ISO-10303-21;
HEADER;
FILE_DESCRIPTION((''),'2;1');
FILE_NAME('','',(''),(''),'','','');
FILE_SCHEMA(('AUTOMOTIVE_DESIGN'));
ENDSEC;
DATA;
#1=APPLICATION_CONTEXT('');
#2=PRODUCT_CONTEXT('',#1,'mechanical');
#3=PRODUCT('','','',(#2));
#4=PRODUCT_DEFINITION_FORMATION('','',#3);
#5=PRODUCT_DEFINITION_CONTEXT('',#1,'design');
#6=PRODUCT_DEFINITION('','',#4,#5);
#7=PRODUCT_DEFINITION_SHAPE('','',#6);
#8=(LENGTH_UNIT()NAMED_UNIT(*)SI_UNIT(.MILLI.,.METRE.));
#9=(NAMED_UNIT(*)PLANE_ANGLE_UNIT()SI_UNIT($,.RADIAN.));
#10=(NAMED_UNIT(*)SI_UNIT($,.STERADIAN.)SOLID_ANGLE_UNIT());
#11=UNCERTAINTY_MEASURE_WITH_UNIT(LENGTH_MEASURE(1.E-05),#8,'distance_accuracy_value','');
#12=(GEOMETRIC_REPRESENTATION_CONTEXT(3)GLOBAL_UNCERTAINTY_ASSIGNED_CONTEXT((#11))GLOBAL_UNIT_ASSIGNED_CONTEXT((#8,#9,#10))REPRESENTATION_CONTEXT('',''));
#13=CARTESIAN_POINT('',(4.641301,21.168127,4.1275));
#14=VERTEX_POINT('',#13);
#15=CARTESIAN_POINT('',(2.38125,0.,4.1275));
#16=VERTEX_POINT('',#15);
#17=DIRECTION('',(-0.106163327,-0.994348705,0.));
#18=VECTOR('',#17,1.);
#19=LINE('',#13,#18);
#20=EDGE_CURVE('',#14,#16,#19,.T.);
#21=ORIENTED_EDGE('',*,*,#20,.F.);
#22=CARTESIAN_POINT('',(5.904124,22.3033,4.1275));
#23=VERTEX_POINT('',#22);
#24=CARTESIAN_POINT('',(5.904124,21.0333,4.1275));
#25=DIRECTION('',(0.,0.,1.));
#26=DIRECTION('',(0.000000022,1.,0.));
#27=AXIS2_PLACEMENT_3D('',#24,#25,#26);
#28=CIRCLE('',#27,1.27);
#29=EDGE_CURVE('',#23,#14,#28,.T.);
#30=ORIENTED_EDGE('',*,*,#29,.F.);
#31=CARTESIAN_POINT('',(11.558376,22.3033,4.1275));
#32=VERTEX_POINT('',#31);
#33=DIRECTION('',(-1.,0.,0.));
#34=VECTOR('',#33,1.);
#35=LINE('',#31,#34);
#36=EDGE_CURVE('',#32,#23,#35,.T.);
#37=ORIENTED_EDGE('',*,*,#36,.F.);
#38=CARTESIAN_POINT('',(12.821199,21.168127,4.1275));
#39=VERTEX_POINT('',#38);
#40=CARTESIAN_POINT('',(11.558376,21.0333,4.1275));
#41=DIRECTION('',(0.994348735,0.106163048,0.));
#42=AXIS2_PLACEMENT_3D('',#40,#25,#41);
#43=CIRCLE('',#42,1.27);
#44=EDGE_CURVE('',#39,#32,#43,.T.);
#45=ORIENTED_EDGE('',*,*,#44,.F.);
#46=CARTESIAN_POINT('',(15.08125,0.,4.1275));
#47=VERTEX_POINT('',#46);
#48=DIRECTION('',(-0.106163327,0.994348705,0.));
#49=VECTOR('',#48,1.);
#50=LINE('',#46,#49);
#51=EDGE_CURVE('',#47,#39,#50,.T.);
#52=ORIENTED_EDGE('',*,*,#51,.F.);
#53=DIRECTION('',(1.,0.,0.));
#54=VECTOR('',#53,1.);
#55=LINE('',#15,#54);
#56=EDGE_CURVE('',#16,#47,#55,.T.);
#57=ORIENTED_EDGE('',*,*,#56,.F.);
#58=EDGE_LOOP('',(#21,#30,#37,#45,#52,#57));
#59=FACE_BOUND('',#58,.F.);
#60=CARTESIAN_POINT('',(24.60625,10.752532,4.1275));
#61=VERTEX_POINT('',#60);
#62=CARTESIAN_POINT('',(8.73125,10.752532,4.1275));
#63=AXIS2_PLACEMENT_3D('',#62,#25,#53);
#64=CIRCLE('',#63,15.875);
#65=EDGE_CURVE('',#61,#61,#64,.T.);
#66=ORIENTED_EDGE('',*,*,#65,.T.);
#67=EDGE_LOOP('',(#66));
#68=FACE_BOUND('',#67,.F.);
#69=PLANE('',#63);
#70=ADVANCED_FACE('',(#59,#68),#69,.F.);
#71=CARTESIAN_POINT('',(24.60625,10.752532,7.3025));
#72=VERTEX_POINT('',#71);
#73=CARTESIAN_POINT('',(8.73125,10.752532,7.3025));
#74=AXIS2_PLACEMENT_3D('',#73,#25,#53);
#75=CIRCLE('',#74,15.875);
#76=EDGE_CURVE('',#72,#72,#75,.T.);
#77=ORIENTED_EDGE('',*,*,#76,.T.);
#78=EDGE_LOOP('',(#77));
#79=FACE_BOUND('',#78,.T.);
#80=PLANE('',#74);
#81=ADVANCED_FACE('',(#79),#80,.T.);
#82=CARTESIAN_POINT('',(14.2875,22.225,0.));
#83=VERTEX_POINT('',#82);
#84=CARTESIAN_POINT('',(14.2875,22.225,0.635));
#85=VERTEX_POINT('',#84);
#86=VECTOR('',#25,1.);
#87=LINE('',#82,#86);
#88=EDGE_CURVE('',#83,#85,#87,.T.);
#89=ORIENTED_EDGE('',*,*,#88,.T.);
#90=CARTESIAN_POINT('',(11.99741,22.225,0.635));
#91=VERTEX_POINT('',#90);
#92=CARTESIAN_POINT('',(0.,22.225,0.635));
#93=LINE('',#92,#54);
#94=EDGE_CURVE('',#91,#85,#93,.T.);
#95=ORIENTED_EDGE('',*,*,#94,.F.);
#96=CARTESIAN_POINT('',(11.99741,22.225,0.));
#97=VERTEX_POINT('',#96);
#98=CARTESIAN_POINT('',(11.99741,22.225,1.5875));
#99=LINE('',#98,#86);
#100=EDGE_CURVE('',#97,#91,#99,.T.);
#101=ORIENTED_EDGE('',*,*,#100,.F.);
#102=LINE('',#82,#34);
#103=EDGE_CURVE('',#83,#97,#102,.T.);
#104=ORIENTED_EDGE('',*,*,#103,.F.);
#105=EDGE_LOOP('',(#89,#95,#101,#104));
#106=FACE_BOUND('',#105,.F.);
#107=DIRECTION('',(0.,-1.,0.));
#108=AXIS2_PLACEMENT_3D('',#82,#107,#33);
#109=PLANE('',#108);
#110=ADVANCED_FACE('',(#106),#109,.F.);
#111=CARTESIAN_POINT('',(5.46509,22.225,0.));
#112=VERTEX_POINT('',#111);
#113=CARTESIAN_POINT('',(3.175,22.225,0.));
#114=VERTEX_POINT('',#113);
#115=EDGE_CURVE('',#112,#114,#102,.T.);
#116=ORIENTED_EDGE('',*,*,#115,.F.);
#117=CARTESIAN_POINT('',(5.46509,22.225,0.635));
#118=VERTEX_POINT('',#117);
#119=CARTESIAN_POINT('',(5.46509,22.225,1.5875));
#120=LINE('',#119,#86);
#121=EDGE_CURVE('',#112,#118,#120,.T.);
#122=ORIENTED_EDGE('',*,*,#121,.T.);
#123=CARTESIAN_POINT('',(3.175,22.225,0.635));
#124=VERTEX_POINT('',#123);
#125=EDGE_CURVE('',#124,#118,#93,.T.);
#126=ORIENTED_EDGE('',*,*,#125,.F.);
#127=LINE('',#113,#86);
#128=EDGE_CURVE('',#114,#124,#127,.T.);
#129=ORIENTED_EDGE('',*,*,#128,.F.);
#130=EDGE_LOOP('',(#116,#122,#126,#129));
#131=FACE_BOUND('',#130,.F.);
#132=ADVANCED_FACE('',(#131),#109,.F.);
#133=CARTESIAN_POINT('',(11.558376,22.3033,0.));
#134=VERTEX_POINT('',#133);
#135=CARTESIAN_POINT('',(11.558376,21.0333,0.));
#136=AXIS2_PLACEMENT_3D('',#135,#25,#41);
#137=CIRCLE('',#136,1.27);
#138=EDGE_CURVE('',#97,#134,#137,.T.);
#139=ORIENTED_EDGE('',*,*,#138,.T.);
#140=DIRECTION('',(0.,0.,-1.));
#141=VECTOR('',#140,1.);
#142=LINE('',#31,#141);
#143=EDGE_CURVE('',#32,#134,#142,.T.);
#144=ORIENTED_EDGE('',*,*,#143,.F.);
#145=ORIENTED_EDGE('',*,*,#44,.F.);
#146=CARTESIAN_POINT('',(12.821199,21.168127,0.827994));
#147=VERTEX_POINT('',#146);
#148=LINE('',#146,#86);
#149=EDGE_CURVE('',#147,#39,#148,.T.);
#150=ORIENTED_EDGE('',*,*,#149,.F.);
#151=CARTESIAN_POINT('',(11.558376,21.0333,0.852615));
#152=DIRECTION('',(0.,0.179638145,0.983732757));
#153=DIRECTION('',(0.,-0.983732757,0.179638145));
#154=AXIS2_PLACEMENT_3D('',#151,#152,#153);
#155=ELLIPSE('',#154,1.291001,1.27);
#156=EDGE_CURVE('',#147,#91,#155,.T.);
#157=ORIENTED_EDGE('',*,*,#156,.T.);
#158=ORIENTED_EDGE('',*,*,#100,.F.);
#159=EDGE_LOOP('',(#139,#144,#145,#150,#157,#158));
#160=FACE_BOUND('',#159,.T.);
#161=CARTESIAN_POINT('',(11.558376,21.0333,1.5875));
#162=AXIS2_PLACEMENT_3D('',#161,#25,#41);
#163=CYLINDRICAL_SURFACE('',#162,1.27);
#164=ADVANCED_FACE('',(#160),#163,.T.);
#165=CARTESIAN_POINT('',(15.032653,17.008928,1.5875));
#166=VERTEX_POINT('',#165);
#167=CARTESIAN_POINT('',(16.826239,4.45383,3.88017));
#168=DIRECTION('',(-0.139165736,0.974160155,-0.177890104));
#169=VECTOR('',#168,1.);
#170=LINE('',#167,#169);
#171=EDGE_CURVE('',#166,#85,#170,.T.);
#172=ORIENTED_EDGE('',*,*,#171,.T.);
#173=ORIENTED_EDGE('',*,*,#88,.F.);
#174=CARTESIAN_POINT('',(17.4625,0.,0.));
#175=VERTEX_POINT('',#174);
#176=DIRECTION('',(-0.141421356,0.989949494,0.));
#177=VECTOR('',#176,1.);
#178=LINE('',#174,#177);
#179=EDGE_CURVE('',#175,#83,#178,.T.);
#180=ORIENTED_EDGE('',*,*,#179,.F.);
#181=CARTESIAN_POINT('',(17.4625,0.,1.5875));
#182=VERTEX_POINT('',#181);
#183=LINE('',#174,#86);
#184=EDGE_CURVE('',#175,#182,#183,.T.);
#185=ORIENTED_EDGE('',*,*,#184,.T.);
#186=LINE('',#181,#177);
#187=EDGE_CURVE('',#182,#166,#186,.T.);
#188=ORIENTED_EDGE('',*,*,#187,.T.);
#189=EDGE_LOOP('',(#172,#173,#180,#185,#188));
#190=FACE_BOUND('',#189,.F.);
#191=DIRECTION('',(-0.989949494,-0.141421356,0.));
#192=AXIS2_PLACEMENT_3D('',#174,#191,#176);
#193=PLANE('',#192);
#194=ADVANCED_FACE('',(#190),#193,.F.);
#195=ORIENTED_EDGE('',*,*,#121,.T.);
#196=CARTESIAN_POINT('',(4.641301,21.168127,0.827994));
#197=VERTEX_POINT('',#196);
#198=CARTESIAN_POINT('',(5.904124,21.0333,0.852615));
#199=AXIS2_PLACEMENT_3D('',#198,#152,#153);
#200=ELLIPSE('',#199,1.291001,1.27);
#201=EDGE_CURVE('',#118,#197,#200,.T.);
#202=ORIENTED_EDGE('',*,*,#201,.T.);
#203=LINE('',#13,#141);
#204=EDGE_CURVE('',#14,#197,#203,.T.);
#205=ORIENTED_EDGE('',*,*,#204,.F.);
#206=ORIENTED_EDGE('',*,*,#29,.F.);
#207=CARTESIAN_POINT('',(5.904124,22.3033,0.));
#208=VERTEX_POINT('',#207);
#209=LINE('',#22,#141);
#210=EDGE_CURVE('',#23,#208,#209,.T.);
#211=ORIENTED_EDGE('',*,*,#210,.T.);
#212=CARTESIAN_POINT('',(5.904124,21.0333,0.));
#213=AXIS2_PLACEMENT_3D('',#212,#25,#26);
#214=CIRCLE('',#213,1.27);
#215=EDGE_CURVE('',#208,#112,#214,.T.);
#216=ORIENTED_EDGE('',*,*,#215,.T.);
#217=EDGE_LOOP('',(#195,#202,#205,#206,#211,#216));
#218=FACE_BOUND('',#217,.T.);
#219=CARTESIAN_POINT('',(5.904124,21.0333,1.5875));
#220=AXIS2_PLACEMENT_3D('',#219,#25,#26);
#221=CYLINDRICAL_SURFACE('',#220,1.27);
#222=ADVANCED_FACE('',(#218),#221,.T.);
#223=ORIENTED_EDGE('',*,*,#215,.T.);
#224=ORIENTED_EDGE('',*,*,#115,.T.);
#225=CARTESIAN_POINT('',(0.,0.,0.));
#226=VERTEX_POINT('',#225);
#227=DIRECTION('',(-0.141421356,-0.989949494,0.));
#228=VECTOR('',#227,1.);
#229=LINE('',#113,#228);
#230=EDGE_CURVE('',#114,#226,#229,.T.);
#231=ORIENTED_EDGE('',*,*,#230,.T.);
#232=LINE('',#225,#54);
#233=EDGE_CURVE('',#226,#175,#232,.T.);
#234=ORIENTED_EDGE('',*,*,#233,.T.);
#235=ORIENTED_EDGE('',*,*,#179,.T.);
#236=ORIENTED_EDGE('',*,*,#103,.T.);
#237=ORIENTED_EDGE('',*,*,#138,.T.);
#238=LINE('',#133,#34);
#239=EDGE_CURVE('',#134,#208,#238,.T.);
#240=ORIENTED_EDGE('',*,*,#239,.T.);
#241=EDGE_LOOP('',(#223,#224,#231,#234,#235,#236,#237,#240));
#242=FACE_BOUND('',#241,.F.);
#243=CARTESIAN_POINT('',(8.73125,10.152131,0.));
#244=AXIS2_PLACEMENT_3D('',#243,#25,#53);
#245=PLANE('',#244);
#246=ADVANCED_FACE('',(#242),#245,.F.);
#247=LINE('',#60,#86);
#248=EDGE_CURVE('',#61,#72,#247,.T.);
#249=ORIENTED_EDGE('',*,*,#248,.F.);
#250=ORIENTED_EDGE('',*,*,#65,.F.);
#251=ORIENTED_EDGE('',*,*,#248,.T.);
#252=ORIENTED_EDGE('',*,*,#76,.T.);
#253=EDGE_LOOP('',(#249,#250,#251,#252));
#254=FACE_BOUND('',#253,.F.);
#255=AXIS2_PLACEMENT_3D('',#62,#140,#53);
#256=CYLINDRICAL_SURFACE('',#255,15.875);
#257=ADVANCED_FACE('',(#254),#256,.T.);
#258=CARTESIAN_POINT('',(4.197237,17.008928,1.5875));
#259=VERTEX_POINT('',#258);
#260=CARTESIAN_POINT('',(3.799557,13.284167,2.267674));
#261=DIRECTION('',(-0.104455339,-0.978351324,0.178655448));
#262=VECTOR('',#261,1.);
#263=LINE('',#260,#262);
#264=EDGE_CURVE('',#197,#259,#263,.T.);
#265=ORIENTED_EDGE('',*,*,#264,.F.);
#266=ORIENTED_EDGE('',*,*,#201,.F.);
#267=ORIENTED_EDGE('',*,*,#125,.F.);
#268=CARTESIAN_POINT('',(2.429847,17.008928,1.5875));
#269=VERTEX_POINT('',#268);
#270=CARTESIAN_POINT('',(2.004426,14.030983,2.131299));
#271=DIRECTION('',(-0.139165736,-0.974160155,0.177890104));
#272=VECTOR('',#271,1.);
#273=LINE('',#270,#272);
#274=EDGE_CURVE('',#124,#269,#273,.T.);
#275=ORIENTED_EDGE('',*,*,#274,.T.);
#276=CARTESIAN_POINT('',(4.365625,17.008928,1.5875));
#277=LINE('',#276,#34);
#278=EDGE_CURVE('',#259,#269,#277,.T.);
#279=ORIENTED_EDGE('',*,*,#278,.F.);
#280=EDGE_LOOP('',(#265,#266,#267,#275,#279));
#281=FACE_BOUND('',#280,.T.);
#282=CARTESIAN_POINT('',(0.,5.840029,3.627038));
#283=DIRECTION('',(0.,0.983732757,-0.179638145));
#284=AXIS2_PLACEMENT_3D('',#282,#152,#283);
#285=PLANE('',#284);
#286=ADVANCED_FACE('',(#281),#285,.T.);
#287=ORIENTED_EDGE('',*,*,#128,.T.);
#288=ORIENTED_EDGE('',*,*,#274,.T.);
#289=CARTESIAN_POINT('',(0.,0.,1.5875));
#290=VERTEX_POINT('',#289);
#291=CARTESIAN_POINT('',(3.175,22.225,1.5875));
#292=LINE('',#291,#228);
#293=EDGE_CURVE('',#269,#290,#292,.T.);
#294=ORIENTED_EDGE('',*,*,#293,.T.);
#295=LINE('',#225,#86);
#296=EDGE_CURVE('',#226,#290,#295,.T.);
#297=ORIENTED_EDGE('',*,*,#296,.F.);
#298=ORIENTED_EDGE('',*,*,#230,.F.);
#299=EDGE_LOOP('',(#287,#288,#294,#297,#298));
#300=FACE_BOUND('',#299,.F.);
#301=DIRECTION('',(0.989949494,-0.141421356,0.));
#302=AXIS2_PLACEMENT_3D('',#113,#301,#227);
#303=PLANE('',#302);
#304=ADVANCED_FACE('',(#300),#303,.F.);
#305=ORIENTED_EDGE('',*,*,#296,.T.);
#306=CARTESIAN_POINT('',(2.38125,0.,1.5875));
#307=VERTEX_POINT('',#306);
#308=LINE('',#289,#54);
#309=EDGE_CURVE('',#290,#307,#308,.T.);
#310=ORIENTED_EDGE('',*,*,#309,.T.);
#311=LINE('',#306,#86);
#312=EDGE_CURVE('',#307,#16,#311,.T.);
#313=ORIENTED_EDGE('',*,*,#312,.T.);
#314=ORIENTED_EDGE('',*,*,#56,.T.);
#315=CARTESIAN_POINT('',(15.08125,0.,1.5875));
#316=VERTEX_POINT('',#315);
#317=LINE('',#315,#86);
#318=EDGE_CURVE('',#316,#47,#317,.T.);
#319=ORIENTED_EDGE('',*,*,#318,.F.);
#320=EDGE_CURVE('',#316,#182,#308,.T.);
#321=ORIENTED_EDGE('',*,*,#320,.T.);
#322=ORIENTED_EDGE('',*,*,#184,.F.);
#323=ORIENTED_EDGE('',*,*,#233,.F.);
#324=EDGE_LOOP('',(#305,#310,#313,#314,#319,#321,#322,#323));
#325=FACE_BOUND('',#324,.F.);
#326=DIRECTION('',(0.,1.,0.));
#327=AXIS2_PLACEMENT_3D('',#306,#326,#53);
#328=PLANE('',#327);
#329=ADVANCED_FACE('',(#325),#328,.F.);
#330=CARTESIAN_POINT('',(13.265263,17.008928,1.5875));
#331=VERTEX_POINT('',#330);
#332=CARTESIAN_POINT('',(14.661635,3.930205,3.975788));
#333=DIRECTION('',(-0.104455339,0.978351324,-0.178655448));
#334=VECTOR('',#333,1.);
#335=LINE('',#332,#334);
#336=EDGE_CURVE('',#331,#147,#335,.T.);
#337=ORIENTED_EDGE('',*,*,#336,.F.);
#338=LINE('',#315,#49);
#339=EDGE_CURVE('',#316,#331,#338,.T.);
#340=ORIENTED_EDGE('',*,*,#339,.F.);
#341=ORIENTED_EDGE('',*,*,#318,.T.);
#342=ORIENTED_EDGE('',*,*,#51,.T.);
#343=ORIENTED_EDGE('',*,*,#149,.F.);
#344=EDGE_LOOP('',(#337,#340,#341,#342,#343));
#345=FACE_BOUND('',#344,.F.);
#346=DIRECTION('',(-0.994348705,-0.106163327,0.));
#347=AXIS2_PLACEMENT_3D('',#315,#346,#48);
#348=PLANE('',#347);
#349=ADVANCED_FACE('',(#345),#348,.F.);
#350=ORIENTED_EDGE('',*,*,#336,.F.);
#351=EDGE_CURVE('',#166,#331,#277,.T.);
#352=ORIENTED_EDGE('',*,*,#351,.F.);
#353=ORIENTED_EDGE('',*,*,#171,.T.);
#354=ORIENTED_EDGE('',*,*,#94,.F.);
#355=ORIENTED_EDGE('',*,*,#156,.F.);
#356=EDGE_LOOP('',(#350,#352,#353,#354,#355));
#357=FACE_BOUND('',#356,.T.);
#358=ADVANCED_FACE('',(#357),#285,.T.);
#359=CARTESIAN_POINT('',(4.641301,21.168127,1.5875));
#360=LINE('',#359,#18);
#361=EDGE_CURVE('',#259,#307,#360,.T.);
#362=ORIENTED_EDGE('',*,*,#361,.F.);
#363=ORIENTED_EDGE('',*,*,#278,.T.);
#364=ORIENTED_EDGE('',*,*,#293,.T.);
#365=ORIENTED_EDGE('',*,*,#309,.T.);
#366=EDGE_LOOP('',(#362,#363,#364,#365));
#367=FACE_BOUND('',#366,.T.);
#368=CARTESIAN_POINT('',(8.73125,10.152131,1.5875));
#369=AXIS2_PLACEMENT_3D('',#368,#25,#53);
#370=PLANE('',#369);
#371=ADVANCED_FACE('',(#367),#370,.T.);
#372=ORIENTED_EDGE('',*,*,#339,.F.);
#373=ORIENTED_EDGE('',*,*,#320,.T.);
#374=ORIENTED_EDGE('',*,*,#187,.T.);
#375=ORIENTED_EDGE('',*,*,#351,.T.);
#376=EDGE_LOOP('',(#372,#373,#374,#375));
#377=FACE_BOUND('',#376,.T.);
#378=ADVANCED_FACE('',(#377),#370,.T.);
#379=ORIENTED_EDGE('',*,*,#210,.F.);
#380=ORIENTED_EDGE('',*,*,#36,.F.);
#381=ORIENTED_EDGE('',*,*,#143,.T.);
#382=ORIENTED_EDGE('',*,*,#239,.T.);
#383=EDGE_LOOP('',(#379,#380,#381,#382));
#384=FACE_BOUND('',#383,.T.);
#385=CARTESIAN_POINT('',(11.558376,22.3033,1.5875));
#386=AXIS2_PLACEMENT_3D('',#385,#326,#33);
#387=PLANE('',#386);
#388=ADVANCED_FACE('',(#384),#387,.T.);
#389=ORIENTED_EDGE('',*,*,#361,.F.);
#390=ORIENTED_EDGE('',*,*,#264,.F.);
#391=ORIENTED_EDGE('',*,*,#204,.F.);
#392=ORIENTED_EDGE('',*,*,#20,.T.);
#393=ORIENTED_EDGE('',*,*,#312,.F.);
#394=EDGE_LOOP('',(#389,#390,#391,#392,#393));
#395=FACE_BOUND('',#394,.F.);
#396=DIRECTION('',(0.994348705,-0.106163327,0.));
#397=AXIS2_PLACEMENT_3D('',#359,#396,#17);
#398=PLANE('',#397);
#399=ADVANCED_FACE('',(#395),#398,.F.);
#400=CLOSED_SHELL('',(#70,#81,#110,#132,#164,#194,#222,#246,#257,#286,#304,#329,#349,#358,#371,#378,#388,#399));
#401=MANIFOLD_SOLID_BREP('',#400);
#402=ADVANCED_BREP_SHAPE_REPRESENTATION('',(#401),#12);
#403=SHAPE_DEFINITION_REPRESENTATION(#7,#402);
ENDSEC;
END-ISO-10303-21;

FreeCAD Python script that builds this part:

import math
import FreeCAD as App
import Part
import Sketcher
from FreeCAD import Vector
Q = App.Units.Quantity


def add_polygon(sketch, points):
    """Adds a closed chain of lines whose ends are joined by coincident constraints."""
    first, n = sketch.GeometryCount, len(points)
    for a, b in zip(points, points[1:] + points[:1]):
        sketch.addGeometry(Part.LineSegment(App.Vector(*a, 0), App.Vector(*b, 0)), False)
    for i in range(n):
        sketch.addConstraint(Sketcher.Constraint("Coincident", first + i, 2, first + (i + 1) % n, 1))

doc = App.newDocument("Part")
body = doc.addObject("PartDesign::Body", "Body")

# Sketch on XY plane
sketch1 = doc.addObject("Sketcher::SketchObject", "Sketch")
body.addObject(sketch1)
sketch1.AttachmentSupport = (doc.XY_Plane, [""])
sketch1.MapMode = "FlatFace"
add_polygon(sketch1, [(3.175, 22.225), (0, 0), (17.4625, 0), (14.2875, 22.225)])  # lines 0-3
sketch1.addConstraint([
    Sketcher.Constraint("Horizontal", 1),
    Sketcher.Constraint("Horizontal", 3),
    Sketcher.Constraint("Coincident", 0, 2, -1, 1),
    Sketcher.Constraint("Equal", 0, 2),
    Sketcher.Constraint("DistanceX", 1, 1, 1, 2, Q("0.6875 in")),
    Sketcher.Constraint("DistanceX", 3, 2, 3, 1, Q("0.4375 in")),
    Sketcher.Constraint("DistanceY", -1, 1, 2, 2, Q("0.875 in")),
])
pad1 = doc.addObject("PartDesign::Pad", "Pad")
body.addObject(pad1)
pad1.Profile = sketch1
pad1.Length = Q("0.0625 in")

# Sketch on YZ plane
sketch2 = doc.addObject("Sketcher::SketchObject", "Sketch001")
body.addObject(sketch2)
sketch2.AttachmentSupport = (doc.YZ_Plane, [""])
sketch2.MapMode = "FlatFace"
add_polygon(sketch2, [(5.840029, 3.627038), (22.225, 0.635), (22.723673, 7.972618), (5.840029, 7.972618)])  # lines 0-3
sketch2.addConstraint([
    Sketcher.Constraint("Horizontal", 2),
    Sketcher.Constraint("Vertical", 3),
    Sketcher.Constraint("DistanceX", -1, 1, 0, 2, Q("0.875 in")),
    Sketcher.Constraint("DistanceY", -1, 1, 0, 2, Q("0.025 in")),
    Sketcher.Constraint("DistanceY", 3, 2, 3, 1, Q("4.34558 mm")),
    Sketcher.Constraint("DistanceX", 2, 2, 2, 1, Q("16.883644 mm")),
    Sketcher.Constraint("DistanceX", -1, 1, 2, 2, Q("5.840029 mm")),
    Sketcher.Constraint("DistanceY", -1, 1, 3, 2, Q("3.627038 mm")),
])
pocket1 = doc.addObject("PartDesign::Pocket", "Pocket")
body.addObject(pocket1)
pocket1.Profile = sketch2
pocket1.Type = "ThroughAll"
pocket1.Reversed = True

# Sketch on XY plane
sketch3 = doc.addObject("Sketcher::SketchObject", "Sketch002")
body.addObject(sketch3)
sketch3.AttachmentSupport = (doc.XY_Plane, [""])
sketch3.MapMode = "FlatFace"
sketch3.AttachmentOffset = App.Placement(Vector(0, 0, 0.0625 * 25.4), App.Rotation())
sketch3.addGeometry([
    Part.LineSegment(Vector(2.38125, 0, 0), Vector(15.08125, 0, 0)),  # 0
    Part.LineSegment(Vector(15.08125, 0, 0), Vector(12.821199, 21.168127, 0)),  # 1
    Part.ArcOfCircle(Part.Circle(Vector(11.558376, 21.0333, 0), Vector(0, 0, 1), 1.27), math.radians(6.094179), math.radians(90.000001)),  # 2
    Part.LineSegment(Vector(11.558376, 22.3033, 0), Vector(5.904124, 22.3033, 0)),  # 3
    Part.ArcOfCircle(Part.Circle(Vector(5.904124, 21.0333, 0), Vector(0, 0, 1), 1.27), math.radians(89.999999), math.radians(173.905821)),  # 4
    Part.LineSegment(Vector(4.641301, 21.168127, 0), Vector(2.38125, 0, 0)),  # 5
], False)
sketch3.addConstraint([
    Sketcher.Constraint("Coincident", 0, 2, 1, 1),
    Sketcher.Constraint("Tangent", 1, 2, 2, 1),
    Sketcher.Constraint("Tangent", 2, 2, 3, 1),
    Sketcher.Constraint("Tangent", 3, 2, 4, 1),
    Sketcher.Constraint("Tangent", 4, 2, 5, 1),
    Sketcher.Constraint("Coincident", 5, 2, 0, 1),
    Sketcher.Constraint("Horizontal", 0),
    Sketcher.Constraint("Horizontal", 3),
    Sketcher.Constraint("Equal", 2, 4),
    Sketcher.Constraint("PointOnObject", 0, 2, -1),
    Sketcher.Constraint("Horizontal", 1, 2, 4, 2),
    Sketcher.Constraint("Radius", 2, Q("0.05 in")),
    Sketcher.Constraint("DistanceX", 0, 1, 0, 2, Q("0.5 in")),
    Sketcher.Constraint("DistanceX", -1, 1, 0, 2, Q("0.59375 in")),
    Sketcher.Constraint("DistanceY", -1, 1, 2, 3, Q("21.0333 mm")),
    Sketcher.Constraint("DistanceX", -1, 1, 1, 2, Q("12.821199 mm")),
])
pad2 = doc.addObject("PartDesign::Pad", "Pad001")
body.addObject(pad2)
pad2.Profile = sketch3
pad2.Type = "TwoLengths"
pad2.Length = Q("0.1 in")
pad2.Length2 = Q("0.0625 in")

# Sketch on XY plane
sketch4 = doc.addObject("Sketcher::SketchObject", "Sketch003")
body.addObject(sketch4)
sketch4.AttachmentSupport = (doc.XY_Plane, [""])
sketch4.MapMode = "FlatFace"
sketch4.AttachmentOffset = App.Placement(Vector(0, 0, 0.1625 * 25.4), App.Rotation())
sketch4.addGeometry(Part.Circle(Vector(8.73125, 10.752532, 0), Vector(0, 0, 1), 15.875), False)
sketch4.addConstraint([
    Sketcher.Constraint("Diameter", 0, Q("1.25 in")),
    Sketcher.Constraint("DistanceX", -1, 1, 0, 3, Q("0.34375 in")),
    Sketcher.Constraint("DistanceY", -1, 1, 0, 3, Q("10.752532 mm")),
])
pad3 = doc.addObject("PartDesign::Pad", "Pad002")
body.addObject(pad3)
pad3.Profile = sketch4
pad3.Length = Q("0.125 in")

doc.recompute()
